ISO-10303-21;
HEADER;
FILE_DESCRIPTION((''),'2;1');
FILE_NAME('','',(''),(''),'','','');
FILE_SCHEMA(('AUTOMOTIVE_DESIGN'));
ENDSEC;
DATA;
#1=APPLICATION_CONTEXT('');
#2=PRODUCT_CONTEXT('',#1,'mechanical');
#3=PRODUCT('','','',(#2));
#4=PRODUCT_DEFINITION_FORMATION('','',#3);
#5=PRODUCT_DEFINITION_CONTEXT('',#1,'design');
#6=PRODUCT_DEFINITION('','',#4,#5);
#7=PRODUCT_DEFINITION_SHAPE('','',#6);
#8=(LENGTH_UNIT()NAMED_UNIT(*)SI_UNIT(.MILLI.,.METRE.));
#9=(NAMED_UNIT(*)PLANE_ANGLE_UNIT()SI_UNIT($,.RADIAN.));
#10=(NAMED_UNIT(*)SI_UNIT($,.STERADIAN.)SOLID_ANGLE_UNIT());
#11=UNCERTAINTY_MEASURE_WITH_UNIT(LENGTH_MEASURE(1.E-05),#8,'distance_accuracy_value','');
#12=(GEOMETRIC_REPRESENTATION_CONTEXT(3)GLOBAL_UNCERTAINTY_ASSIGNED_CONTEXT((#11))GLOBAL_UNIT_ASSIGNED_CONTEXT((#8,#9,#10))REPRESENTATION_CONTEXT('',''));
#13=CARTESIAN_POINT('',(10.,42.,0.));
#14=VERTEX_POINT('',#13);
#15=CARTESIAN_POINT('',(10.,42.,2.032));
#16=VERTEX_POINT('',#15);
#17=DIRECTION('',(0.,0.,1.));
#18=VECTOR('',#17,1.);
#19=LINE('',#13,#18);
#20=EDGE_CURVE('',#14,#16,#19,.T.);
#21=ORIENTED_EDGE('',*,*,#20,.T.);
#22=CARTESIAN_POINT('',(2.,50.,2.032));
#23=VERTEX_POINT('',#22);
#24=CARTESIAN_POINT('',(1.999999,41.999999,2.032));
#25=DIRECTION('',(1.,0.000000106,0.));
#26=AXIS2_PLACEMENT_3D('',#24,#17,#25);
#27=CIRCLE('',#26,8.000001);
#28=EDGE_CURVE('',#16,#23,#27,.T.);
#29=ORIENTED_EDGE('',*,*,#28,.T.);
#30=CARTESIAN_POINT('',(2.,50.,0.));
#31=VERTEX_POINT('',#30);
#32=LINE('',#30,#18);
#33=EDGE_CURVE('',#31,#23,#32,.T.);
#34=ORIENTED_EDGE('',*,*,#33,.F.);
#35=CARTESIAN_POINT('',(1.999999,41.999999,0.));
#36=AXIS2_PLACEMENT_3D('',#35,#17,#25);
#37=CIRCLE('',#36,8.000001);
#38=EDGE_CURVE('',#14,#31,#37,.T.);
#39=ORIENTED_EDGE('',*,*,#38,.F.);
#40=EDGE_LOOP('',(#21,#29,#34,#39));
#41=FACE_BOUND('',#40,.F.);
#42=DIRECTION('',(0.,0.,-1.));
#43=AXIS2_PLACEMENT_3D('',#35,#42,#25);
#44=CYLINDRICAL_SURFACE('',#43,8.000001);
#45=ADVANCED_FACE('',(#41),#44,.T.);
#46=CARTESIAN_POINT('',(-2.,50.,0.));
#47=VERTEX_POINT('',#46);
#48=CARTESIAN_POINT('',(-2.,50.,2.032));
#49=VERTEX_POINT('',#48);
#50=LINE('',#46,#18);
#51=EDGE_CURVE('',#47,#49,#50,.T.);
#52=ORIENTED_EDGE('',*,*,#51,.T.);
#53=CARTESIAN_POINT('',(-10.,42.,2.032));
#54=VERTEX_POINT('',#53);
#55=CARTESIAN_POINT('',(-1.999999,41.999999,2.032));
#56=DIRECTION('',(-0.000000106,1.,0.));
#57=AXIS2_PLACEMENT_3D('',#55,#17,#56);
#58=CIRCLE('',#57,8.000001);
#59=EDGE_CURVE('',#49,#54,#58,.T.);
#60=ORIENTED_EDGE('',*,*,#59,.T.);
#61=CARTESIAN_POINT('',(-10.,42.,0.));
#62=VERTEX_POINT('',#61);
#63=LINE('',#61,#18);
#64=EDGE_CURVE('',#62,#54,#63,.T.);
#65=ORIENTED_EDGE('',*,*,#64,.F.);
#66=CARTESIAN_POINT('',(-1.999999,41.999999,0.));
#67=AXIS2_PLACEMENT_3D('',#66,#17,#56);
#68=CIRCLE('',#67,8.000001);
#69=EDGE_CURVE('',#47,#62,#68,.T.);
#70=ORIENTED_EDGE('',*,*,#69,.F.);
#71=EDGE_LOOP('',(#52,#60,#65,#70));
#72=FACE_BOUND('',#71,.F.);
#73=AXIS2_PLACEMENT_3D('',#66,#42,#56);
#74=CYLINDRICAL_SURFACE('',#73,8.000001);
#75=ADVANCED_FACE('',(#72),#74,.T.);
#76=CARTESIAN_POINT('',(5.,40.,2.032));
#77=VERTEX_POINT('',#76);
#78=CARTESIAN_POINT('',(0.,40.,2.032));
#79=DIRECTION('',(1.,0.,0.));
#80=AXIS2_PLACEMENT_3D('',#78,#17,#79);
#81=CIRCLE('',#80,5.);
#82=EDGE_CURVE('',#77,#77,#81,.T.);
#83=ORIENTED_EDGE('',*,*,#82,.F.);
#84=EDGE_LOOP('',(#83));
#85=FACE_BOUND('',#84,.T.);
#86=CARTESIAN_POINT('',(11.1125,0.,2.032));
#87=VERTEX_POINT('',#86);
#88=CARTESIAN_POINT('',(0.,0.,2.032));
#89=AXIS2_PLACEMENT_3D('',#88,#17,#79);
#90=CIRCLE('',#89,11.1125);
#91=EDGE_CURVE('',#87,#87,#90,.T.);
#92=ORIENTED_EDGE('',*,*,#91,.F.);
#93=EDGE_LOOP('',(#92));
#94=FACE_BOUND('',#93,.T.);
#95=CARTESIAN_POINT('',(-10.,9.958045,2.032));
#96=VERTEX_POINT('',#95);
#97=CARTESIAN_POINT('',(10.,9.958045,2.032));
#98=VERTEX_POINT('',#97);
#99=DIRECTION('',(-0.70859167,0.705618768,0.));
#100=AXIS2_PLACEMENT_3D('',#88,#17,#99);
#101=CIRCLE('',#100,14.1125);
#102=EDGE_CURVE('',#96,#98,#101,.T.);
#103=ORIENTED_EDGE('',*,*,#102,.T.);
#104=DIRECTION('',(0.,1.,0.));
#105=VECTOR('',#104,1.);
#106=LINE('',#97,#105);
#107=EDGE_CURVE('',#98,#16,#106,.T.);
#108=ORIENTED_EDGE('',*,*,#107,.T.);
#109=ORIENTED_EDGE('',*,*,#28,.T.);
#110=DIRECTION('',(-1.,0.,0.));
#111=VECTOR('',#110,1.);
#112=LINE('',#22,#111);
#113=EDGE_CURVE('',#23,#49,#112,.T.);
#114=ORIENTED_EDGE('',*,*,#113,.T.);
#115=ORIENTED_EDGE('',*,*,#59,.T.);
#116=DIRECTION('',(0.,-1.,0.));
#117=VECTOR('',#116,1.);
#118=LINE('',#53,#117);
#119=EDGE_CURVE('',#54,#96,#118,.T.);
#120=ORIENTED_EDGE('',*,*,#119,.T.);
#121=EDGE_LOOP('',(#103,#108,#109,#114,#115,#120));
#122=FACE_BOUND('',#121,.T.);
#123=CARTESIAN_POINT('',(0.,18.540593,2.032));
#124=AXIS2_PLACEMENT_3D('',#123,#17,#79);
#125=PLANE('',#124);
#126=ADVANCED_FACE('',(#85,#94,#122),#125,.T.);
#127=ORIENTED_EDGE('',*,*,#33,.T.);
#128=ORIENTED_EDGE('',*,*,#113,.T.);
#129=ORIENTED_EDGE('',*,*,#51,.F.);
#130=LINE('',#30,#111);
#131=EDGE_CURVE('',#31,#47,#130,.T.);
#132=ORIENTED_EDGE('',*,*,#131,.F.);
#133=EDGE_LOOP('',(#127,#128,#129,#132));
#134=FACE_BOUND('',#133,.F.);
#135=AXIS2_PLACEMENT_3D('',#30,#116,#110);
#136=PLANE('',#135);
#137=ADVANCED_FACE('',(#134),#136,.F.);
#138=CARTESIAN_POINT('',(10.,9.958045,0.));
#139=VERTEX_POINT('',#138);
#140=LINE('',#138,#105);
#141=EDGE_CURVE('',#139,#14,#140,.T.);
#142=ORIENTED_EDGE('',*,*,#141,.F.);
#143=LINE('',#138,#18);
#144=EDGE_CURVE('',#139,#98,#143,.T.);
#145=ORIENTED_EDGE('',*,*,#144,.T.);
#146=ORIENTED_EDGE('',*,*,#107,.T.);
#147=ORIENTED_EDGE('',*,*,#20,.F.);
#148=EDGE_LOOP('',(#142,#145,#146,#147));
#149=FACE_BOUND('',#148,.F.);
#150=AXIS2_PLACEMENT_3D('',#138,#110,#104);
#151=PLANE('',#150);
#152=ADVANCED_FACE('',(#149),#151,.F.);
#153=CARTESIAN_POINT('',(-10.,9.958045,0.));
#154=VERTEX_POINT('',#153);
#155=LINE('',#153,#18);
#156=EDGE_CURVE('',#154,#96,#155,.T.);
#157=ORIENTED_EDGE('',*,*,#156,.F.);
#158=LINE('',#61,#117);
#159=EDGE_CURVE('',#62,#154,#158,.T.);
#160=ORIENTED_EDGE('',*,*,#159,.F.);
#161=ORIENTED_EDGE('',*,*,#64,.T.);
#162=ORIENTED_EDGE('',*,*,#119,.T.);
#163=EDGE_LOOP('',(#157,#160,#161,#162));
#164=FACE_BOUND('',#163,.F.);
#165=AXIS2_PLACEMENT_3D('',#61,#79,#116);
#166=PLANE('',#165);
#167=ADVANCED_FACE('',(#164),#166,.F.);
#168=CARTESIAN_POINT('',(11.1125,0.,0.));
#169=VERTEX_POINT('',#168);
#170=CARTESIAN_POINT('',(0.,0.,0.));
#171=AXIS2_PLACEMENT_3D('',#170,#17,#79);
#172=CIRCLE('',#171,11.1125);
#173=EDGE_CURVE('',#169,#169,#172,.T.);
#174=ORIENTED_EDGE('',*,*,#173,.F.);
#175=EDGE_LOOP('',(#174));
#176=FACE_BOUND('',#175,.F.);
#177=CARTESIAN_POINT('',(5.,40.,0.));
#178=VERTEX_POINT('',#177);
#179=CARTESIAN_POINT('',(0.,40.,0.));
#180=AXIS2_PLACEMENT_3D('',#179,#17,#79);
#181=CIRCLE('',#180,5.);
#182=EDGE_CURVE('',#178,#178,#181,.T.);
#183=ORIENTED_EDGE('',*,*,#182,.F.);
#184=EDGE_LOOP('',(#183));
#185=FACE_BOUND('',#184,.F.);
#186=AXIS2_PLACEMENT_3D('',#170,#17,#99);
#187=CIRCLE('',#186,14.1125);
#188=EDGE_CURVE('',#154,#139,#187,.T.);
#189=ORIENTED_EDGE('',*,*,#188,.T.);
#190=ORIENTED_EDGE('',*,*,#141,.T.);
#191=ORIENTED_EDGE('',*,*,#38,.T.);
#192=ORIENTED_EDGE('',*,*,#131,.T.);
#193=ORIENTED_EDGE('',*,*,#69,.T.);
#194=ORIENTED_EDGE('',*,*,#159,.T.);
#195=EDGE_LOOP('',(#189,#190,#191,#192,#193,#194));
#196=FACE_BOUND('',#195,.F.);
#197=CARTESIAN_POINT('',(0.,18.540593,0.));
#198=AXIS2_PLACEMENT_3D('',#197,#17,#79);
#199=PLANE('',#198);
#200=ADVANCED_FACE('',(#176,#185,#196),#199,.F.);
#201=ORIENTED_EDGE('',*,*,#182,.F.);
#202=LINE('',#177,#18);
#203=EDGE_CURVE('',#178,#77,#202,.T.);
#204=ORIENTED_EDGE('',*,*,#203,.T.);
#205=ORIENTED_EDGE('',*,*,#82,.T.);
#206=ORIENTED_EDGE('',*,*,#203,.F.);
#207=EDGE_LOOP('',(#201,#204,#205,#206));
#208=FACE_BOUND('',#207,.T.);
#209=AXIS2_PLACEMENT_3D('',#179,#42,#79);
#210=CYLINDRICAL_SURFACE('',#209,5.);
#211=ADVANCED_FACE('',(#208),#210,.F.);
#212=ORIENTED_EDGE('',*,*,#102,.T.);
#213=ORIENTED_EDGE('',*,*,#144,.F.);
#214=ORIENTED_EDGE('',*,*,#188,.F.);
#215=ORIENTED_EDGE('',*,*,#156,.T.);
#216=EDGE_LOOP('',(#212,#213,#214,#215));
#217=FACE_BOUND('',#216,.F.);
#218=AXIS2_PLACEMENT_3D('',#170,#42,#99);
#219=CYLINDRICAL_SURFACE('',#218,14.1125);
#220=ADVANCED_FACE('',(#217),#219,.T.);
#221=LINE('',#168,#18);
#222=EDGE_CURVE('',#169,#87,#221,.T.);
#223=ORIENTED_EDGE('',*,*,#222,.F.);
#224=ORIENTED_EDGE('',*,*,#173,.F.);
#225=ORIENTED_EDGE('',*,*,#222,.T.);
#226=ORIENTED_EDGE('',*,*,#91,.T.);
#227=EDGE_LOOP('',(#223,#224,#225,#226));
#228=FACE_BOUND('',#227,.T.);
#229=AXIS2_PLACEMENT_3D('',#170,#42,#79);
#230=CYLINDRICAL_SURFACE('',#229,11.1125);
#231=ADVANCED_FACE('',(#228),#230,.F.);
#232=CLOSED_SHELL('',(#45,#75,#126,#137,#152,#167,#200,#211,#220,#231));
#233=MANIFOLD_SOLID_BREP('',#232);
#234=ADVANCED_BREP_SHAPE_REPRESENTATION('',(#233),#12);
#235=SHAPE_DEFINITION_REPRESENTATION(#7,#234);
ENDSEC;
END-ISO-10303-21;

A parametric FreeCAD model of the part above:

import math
import FreeCAD as App
import Part
import Sketcher
Q = App.Units.Quantity

doc = App.newDocument("Part")
params = doc.addObject("Spreadsheet::Sheet", "Params")
for row, (alias, value) in enumerate([
    ("sketch1_diameter", "10 mm"),
    ("sketch1_radius", "8.000001 mm"),
    ("sketch1_width", "4 mm"),
    ("pad1_length", "2.032 mm"),
], start=1):
    params.set(f"A{row}", alias)
    params.set(f"B{row}", "=" + value)
    params.setAlias(f"B{row}", alias)

body = doc.addObject("PartDesign::Body", "Body")

sketch1 = body.newObject("Sketcher::SketchObject", "Sketch")
sketch1.AttachmentSupport = (doc.getObject("XY_Plane"), [""])
sketch1.MapMode = "FlatFace"
sketch1.addGeometry([
    Part.LineSegment(App.Vector(2, 50, 0), App.Vector(-2, 50, 0)),
    Part.ArcOfCircle(Part.Circle(App.Vector(-2, 42, 0), App.Vector(0, 0, 1), 8), math.radians(90), math.radians(180)),
    Part.LineSegment(App.Vector(-10, 42, 0), App.Vector(-10, 10, 0)),
    Part.ArcOfCircle(Part.Circle(App.Vector(0, 0, 0), App.Vector(0, 0, 1), 14.1), math.radians(135), math.radians(405)),
    Part.LineSegment(App.Vector(10, 10, 0), App.Vector(10, 42, 0)),
    Part.ArcOfCircle(Part.Circle(App.Vector(2, 42, 0), App.Vector(0, 0, 1), 8), math.radians(0), math.radians(90)),
    Part.Circle(App.Vector(0, 0, 0), App.Vector(0, 0, 1), 11.1),
    Part.Circle(App.Vector(0, 40, 0), App.Vector(0, 0, 1), 5),
], False)
sketch1.addConstraint([
    Sketcher.Constraint("Tangent", 0, 2, 1, 1),
    Sketcher.Constraint("Tangent", 1, 2, 2, 1),
    Sketcher.Constraint("Coincident", 2, 2, 3, 1),
    Sketcher.Constraint("Coincident", 3, 2, 4, 1),
    Sketcher.Constraint("Tangent", 4, 2, 5, 1),
    Sketcher.Constraint("Tangent", 5, 2, 0, 1),
    Sketcher.Constraint("Horizontal", 0),
    Sketcher.Constraint("Vertical", 2),
    Sketcher.Constraint("Vertical", 4),
    Sketcher.Constraint("Coincident", 3, 3, -1, 1),
    Sketcher.Constraint("Coincident", 6, 3, -1, 1),
    Sketcher.Constraint("Equal", 1, 5),
    Sketcher.Constraint("PointOnObject", 7, 3, -2),
    Sketcher.Constraint("Horizontal", 2, 2, 3, 2),
    Sketcher.Constraint("Diameter", 7, Q("10 mm")),
    Sketcher.Constraint("Radius", 1, Q("8.000001 mm")),
    Sketcher.Constraint("DistanceX", 0, 2, 0, 1, Q("4 mm")),
    Sketcher.Constraint("Diameter", 6, Q("22.225 mm")),
    Sketcher.Constraint("DistanceY", -1, 1, 1, 3, Q("41.999999 mm")),
    Sketcher.Constraint("DistanceY", -1, 1, 7, 3, Q("40 mm")),
    Sketcher.Constraint("Radius", 3, Q("14.1125 mm")),
])
sketch1.setExpression("Constraints[14]", "Params.sketch1_diameter")
sketch1.setExpression("Constraints[15]", "Params.sketch1_radius")
sketch1.setExpression("Constraints[16]", "Params.sketch1_width")
pad1 = body.newObject("PartDesign::Pad", "Pad")
pad1.Profile = sketch1
pad1.setExpression("Length", "Params.pad1_length")

doc.recompute()
